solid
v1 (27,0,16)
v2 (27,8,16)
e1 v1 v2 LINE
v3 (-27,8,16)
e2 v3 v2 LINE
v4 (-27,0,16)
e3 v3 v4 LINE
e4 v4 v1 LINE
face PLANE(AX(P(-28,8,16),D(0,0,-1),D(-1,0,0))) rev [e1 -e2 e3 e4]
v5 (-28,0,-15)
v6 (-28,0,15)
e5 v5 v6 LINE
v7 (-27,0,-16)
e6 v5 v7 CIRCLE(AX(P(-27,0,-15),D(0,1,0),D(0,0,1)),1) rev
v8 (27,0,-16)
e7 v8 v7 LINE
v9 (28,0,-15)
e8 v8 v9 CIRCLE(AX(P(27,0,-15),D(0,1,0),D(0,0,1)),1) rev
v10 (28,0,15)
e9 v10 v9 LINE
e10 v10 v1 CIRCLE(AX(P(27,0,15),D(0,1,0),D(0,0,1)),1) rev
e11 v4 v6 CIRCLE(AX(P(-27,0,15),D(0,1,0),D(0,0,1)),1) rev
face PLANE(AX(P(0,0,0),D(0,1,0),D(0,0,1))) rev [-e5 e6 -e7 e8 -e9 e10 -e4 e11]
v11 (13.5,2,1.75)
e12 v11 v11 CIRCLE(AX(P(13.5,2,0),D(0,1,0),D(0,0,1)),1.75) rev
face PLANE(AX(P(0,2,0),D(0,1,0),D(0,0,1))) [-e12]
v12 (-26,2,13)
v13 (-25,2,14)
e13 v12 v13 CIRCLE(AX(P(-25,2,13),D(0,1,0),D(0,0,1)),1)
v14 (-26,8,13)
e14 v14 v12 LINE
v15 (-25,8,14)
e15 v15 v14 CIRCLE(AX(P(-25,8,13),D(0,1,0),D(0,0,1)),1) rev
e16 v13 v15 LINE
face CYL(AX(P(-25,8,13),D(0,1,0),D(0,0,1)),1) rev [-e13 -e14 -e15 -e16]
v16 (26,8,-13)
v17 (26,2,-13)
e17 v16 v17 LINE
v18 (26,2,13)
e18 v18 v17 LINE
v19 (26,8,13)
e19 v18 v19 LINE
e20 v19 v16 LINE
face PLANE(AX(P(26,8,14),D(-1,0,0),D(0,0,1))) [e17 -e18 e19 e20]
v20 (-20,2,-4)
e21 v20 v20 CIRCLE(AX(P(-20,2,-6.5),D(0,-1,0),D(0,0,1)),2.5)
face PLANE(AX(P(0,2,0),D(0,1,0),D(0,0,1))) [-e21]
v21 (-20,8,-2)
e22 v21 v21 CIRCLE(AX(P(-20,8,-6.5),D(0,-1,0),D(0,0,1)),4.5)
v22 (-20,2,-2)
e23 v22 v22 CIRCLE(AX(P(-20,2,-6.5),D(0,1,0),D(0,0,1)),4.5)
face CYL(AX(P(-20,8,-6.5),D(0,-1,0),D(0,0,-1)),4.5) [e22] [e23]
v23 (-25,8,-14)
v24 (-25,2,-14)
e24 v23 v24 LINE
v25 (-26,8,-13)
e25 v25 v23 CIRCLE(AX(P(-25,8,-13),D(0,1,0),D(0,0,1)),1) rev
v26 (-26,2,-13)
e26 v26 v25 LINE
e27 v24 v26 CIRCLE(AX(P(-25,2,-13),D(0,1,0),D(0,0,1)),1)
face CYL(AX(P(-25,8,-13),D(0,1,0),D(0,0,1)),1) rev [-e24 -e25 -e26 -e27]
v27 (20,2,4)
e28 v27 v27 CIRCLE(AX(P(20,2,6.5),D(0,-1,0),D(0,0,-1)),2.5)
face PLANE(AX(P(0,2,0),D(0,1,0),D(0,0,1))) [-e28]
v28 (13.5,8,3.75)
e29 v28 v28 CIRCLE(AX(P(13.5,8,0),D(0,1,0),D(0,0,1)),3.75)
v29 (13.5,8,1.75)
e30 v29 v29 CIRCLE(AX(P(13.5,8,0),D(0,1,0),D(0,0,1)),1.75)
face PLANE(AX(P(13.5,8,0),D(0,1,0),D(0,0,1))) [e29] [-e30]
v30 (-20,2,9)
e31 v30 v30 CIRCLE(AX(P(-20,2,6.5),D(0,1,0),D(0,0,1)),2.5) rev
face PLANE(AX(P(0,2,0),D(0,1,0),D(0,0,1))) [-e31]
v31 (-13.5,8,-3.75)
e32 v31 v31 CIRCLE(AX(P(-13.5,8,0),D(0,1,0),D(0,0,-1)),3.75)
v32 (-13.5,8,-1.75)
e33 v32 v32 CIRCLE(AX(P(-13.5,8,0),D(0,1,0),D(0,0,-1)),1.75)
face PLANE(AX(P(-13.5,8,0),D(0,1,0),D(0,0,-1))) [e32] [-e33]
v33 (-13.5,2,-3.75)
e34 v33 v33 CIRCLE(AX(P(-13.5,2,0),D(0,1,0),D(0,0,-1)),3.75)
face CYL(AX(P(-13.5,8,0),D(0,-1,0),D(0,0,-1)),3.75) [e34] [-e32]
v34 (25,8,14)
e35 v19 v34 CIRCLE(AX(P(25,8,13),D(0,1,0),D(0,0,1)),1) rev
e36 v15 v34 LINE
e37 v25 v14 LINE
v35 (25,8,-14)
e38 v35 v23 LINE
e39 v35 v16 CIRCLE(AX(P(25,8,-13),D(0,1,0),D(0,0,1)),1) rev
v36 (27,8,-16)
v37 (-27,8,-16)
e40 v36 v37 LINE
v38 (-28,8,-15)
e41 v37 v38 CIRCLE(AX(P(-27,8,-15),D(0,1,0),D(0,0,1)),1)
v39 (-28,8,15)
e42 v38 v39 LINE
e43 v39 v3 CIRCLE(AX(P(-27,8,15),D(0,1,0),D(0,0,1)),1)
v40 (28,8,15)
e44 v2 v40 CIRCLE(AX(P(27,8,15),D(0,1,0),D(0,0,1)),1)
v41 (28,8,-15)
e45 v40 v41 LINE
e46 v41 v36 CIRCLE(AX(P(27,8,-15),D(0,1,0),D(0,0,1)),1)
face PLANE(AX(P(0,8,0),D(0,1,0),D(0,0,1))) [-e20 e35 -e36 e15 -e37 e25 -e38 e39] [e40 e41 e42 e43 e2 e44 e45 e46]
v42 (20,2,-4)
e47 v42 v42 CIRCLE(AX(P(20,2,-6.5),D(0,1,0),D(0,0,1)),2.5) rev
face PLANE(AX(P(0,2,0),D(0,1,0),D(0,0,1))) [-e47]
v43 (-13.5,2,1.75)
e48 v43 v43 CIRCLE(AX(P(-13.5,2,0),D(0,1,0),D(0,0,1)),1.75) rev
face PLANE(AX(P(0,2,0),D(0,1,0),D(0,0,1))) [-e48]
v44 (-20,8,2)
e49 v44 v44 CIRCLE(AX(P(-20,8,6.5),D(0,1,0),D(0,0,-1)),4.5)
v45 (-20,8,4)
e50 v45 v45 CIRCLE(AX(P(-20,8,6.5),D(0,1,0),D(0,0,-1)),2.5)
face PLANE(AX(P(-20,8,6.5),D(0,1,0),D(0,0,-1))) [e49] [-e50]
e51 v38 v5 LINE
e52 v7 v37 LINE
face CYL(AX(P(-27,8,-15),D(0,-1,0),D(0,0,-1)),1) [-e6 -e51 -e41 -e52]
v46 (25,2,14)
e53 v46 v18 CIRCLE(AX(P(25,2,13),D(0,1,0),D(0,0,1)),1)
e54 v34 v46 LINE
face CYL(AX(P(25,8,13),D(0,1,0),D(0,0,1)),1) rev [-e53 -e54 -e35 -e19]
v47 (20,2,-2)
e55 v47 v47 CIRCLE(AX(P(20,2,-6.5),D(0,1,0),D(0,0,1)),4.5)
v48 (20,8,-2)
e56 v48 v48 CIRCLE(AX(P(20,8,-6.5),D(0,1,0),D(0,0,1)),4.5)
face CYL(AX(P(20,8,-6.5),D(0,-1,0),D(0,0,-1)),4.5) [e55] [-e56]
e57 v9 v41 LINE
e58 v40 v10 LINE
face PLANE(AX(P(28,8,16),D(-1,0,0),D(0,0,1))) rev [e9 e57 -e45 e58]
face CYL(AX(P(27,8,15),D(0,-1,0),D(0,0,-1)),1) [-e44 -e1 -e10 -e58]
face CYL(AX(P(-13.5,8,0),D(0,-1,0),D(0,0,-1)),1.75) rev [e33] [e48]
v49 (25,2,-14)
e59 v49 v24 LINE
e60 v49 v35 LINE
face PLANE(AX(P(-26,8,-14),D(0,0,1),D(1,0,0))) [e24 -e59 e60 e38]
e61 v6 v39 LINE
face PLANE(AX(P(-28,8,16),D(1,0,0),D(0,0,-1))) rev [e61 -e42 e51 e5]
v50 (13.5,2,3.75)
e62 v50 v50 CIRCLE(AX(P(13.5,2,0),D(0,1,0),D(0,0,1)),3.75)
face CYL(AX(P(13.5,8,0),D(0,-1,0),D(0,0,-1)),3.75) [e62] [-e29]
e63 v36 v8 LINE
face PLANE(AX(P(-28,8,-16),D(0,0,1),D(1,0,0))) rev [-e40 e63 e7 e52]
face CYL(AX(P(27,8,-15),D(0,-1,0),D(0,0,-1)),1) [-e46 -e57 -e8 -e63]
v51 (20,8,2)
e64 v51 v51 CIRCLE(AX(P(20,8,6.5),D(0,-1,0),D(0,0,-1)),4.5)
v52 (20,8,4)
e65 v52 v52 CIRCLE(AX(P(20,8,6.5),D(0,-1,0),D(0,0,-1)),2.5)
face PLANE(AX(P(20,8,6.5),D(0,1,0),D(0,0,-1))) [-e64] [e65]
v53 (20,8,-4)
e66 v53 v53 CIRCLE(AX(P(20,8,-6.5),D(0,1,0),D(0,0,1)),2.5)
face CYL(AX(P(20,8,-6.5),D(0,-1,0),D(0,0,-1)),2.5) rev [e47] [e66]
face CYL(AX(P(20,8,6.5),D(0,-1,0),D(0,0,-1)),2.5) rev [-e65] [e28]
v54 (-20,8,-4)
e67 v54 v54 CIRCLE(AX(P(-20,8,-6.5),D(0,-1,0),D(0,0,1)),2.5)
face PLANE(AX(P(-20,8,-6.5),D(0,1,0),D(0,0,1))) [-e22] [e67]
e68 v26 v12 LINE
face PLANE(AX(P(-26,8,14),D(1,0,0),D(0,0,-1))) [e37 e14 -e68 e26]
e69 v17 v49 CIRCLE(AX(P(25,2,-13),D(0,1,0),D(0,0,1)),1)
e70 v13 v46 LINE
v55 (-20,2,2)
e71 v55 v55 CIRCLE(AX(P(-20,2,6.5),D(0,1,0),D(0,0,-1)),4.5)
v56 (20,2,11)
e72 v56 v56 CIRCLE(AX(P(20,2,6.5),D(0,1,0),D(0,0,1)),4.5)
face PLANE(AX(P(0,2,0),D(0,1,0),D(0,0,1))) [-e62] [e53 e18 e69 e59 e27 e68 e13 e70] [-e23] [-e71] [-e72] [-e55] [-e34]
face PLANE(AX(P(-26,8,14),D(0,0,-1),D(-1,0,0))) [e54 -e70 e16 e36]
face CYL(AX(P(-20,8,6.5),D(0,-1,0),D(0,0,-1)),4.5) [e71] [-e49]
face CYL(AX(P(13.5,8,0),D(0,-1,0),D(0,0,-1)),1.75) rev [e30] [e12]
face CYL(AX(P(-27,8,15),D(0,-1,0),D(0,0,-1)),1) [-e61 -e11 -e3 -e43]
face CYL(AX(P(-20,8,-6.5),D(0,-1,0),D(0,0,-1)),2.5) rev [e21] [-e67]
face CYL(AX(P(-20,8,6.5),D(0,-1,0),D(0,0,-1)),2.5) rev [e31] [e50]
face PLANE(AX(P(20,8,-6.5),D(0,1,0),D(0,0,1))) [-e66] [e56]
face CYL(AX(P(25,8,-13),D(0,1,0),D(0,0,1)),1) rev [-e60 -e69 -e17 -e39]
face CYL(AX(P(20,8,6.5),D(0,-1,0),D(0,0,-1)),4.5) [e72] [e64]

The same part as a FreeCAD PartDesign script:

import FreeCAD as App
import Part
import Sketcher
Q = App.Units.Quantity


def edges_at(feature, points):
    """Names of the edges that pass closest to the given points."""
    edges = feature.Shape.Edges
    near = lambda p: min(range(len(edges)), key=lambda i: edges[i].distToShape(Part.Vertex(*p))[0])
    return sorted({f"Edge{near(p) + 1}" for p in points})

doc = App.newDocument("Part")
body = doc.addObject("PartDesign::Body", "Body")

# Sketch on XZ plane
sketch1 = body.newObject("Sketcher::SketchObject", "Sketch")
sketch1.AttachmentSupport = (doc.getObject("XZ_Plane"), [""])
sketch1.MapMode = "FlatFace"
sketch1.addGeometry([
    Part.LineSegment(App.Vector(-28, -16, 0), App.Vector(-28, 16, 0)),  # 0
    Part.LineSegment(App.Vector(-28, 16, 0), App.Vector(28, 16, 0)),  # 1
    Part.LineSegment(App.Vector(28, 16, 0), App.Vector(28, -16, 0)),  # 2
    Part.LineSegment(App.Vector(28, -16, 0), App.Vector(-28, -16, 0)),  # 3
    Part.LineSegment(App.Vector(26, 14, 0), App.Vector(-26, 14, 0)),  # 4
    Part.LineSegment(App.Vector(-26, 14, 0), App.Vector(-26, -14, 0)),  # 5
    Part.LineSegment(App.Vector(-26, -14, 0), App.Vector(26, -14, 0)),  # 6
    Part.LineSegment(App.Vector(26, -14, 0), App.Vector(26, 14, 0)),  # 7
], False)
sketch1.addConstraint([
    Sketcher.Constraint("Coincident", 0, 2, 1, 1),
    Sketcher.Constraint("Coincident", 1, 2, 2, 1),
    Sketcher.Constraint("Coincident", 2, 2, 3, 1),
    Sketcher.Constraint("Coincident", 3, 2, 0, 1),
    Sketcher.Constraint("Coincident", 4, 2, 5, 1),
    Sketcher.Constraint("Coincident", 5, 2, 6, 1),
    Sketcher.Constraint("Coincident", 6, 2, 7, 1),
    Sketcher.Constraint("Coincident", 7, 2, 4, 1),
    Sketcher.Constraint("Vertical", 0),
    Sketcher.Constraint("Horizontal", 1),
    Sketcher.Constraint("Vertical", 2),
    Sketcher.Constraint("Horizontal", 3),
    Sketcher.Constraint("Horizontal", 4),
    Sketcher.Constraint("Vertical", 5),
    Sketcher.Constraint("Horizontal", 6),
    Sketcher.Constraint("Vertical", 7),
    Sketcher.Constraint("Symmetric", 0, 2, 2, 2, -1, 1),
    Sketcher.Constraint("Symmetric", 4, 2, 6, 2, -1, 1),
    Sketcher.Constraint("DistanceX", 1, 1, 1, 2, Q("56 mm")),
    Sketcher.Constraint("DistanceX", 4, 2, 4, 1, Q("52 mm")),
    Sketcher.Constraint("DistanceY", 0, 1, 0, 2, Q("32 mm")),
    Sketcher.Constraint("DistanceY", 5, 2, 5, 1, Q("28 mm")),
])
pad1 = body.newObject("PartDesign::Pad", "Pad")
pad1.Profile = sketch1
pad1.Length = 8
pad1.Reversed = True

# Sketch on XZ plane
sketch2 = body.newObject("Sketcher::SketchObject", "Sketch001")
sketch2.AttachmentSupport = (doc.getObject("XZ_Plane"), [""])
sketch2.MapMode = "FlatFace"
sketch2.addGeometry([
    Part.LineSegment(App.Vector(-28, -16, 0), App.Vector(-28, 16, 0)),
    Part.LineSegment(App.Vector(-28, 16, 0), App.Vector(28, 16, 0)),
    Part.LineSegment(App.Vector(28, 16, 0), App.Vector(28, -16, 0)),
    Part.LineSegment(App.Vector(28, -16, 0), App.Vector(-28, -16, 0)),
], False)
sketch2.addConstraint([
    Sketcher.Constraint("Coincident", 0, 2, 1, 1),
    Sketcher.Constraint("Coincident", 1, 2, 2, 1),
    Sketcher.Constraint("Coincident", 2, 2, 3, 1),
    Sketcher.Constraint("Coincident", 3, 2, 0, 1),
    Sketcher.Constraint("Vertical", 0),
    Sketcher.Constraint("Horizontal", 1),
    Sketcher.Constraint("Vertical", 2),
    Sketcher.Constraint("Horizontal", 3),
    Sketcher.Constraint("Symmetric", 0, 2, 2, 2, -1, 1),
    Sketcher.Constraint("DistanceX", 1, 1, 1, 2, Q("56 mm")),
    Sketcher.Constraint("DistanceY", 0, 1, 0, 2, Q("32 mm")),
])
pad2 = body.newObject("PartDesign::Pad", "Pad001")
pad2.Profile = sketch2
pad2.Length = 2
pad2.Reversed = True

# Sketch on XZ plane
sketch3 = body.newObject("Sketcher::SketchObject", "Sketch002")
sketch3.AttachmentSupport = (doc.getObject("XZ_Plane"), [""])
sketch3.MapMode = "FlatFace"
sketch3.AttachmentOffset = App.Placement(App.Vector(0, 0, -2), App.Rotation())
sketch3.addGeometry([
    Part.Circle(App.Vector(13.5, 0, 0), App.Vector(0, 0, 1), 3.8),
    Part.Circle(App.Vector(13.5, 0, 0), App.Vector(0, 0, 1), 1.8),
    Part.Circle(App.Vector(20, -6.5, 0), App.Vector(0, 0, 1), 4.5),
    Part.Circle(App.Vector(20, -6.5, 0), App.Vector(0, 0, 1), 2.5),
], False)
sketch3.addConstraint([
    Sketcher.Constraint("Coincident", 1, 3, 0, 3),
    Sketcher.Constraint("Coincident", 3, 3, 2, 3),
    Sketcher.Constraint("PointOnObject", 0, 3, -1),
    Sketcher.Constraint("Diameter", 2, Q("9 mm")),
    Sketcher.Constraint("Diameter", 3, Q("5 mm")),
    Sketcher.Constraint("Diameter", 0, Q("7.5 mm")),
    Sketcher.Constraint("Diameter", 1, Q("3.5 mm")),
    Sketcher.Constraint("DistanceX", -1, 1, 2, 3, Q("20 mm")),
    Sketcher.Constraint("DistanceX", -1, 1, 0, 3, Q("13.5 mm")),
    Sketcher.Constraint("DistanceY", 2, 3, -1, 1, Q("6.5 mm")),
])
pad3 = body.newObject("PartDesign::Pad", "Pad002")
pad3.Profile = sketch3
pad3.Length = 6
pad3.Reversed = True
doc.recompute()

mirrored = body.newObject("PartDesign::Mirrored", "Mirrored")
mirrored.Originals = [pad3]
mirrored.MirrorPlane = (doc.getObject("XY_Plane"), [""])
body.Tip = mirrored
doc.recompute()

mirrored2 = body.newObject("PartDesign::Mirrored", "Mirrored001")
mirrored2.Originals = [pad3]
mirrored2.MirrorPlane = (doc.getObject("YZ_Plane"), [""])
body.Tip = mirrored2

# Sketch on XZ plane
sketch4 = body.newObject("Sketcher::SketchObject", "Sketch003")
sketch4.AttachmentSupport = (doc.getObject("XZ_Plane"), [""])
sketch4.MapMode = "FlatFace"
sketch4.AttachmentOffset = App.Placement(App.Vector(0, 0, -2), App.Rotation())
sketch4.addGeometry([
    Part.Circle(App.Vector(-13.5, 0, 0), App.Vector(0, 0, 1), 3.8),
    Part.Circle(App.Vector(-13.5, 0, 0), App.Vector(0, 0, 1), 1.8),
    Part.Circle(App.Vector(-20, 6.5, 0), App.Vector(0, 0, 1), 4.5),
    Part.Circle(App.Vector(-20, 6.5, 0), App.Vector(0, 0, 1), 2.5),
], False)
sketch4.addConstraint([
    Sketcher.Constraint("Coincident", 1, 3, 0, 3),
    Sketcher.Constraint("Coincident", 3, 3, 2, 3),
    Sketcher.Constraint("PointOnObject", 0, 3, -1),
    Sketcher.Constraint("Diameter", 2, Q("9 mm")),
    Sketcher.Constraint("Diameter", 3, Q("5 mm")),
    Sketcher.Constraint("Diameter", 0, Q("7.5 mm")),
    Sketcher.Constraint("Diameter", 1, Q("3.5 mm")),
    Sketcher.Constraint("DistanceX", 2, 3, -1, 1, Q("20 mm")),
    Sketcher.Constraint("DistanceX", 0, 3, -1, 1, Q("13.5 mm")),
    Sketcher.Constraint("DistanceY", -1, 1, 2, 3, Q("6.5 mm")),
])
pad4 = body.newObject("PartDesign::Pad", "Pad003")
pad4.Profile = sketch4
pad4.Length = 6
pad4.Reversed = True
doc.recompute()

fillet = body.newObject("PartDesign::Fillet", "Fillet")
fillet.Base = (pad4, edges_at(pad4, [
    (26, 5, 14),
    (26, 5, -14),
    (-26, 5, -14),
    (-26, 5, 14),
    (-28, 4, 16),
    (-28, 4, -16),
    (28, 4, -16),
    (28, 4, 16),
]))
fillet.Radius = 1

doc.recompute()
